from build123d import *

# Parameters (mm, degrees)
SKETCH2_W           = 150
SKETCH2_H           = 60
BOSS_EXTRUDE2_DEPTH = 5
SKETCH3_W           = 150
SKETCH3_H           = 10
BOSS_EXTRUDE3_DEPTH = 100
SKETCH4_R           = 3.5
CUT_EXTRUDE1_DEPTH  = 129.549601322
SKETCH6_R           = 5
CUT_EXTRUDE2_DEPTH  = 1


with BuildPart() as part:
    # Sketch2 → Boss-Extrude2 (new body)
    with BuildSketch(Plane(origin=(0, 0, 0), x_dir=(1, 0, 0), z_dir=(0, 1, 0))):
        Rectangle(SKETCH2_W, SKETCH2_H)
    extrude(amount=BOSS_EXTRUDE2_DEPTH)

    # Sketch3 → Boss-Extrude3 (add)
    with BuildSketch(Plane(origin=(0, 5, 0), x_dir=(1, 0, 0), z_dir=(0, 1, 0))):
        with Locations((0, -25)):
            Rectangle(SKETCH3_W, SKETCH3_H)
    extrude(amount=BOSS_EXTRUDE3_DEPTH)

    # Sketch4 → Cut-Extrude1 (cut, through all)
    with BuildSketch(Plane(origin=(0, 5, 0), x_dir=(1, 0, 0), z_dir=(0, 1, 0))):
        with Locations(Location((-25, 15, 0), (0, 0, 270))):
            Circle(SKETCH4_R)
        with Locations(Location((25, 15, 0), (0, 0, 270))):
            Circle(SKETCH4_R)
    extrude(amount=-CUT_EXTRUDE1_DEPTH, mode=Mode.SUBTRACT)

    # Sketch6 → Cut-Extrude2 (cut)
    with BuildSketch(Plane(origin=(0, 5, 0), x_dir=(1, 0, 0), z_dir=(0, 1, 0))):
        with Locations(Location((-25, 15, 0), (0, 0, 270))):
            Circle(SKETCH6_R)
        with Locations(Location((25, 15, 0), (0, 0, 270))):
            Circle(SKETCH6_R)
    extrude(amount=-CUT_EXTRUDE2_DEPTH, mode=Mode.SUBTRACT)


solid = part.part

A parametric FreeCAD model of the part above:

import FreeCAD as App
import Part
import Sketcher

V = App.Vector
Q = App.Units.Quantity

doc = App.newDocument("Part")
body = doc.addObject("PartDesign::Body", "Body")

# Sketch on XZ plane
sketch1 = doc.addObject("Sketcher::SketchObject", "Sketch")
body.addObject(sketch1)
sketch1.AttachmentSupport = (doc.XZ_Plane, [""])
sketch1.MapMode = "FlatFace"
sketch1.addGeometry([
    Part.LineSegment(V(-75, -30, 0), V(-75, 30, 0)),
    Part.LineSegment(V(-75, 30, 0), V(75, 30, 0)),
    Part.LineSegment(V(75, 30, 0), V(75, -30, 0)),
    Part.LineSegment(V(75, -30, 0), V(-75, -30, 0)),
], False)
sketch1.addConstraint([
    Sketcher.Constraint("Coincident", 0, 2, 1, 1),
    Sketcher.Constraint("Coincident", 1, 2, 2, 1),
    Sketcher.Constraint("Coincident", 2, 2, 3, 1),
    Sketcher.Constraint("Coincident", 3, 2, 0, 1),
    Sketcher.Constraint("Vertical", 0),
    Sketcher.Constraint("Horizontal", 1),
    Sketcher.Constraint("Vertical", 2),
    Sketcher.Constraint("Horizontal", 3),
    Sketcher.Constraint("Symmetric", 0, 2, 2, 2, -1, 1),
    Sketcher.Constraint("DistanceX", 1, 1, 1, 2, Q("150 mm")),
    Sketcher.Constraint("DistanceY", 0, 1, 0, 2, Q("60 mm")),
])
pad1 = doc.addObject("PartDesign::Pad", "Pad")
body.addObject(pad1)
pad1.Profile = sketch1
pad1.Length = 5
pad1.Reversed = True

# Sketch on XZ plane
sketch2 = doc.addObject("Sketcher::SketchObject", "Sketch001")
body.addObject(sketch2)
sketch2.AttachmentSupport = (doc.XZ_Plane, [""])
sketch2.MapMode = "FlatFace"
sketch2.AttachmentOffset = App.Placement(V(0, 0, -5), App.Rotation())
sketch2.addGeometry([
    Part.LineSegment(V(-75, 20, 0), V(-75, 30, 0)),
    Part.LineSegment(V(-75, 30, 0), V(75, 30, 0)),
    Part.LineSegment(V(75, 30, 0), V(75, 20, 0)),
    Part.LineSegment(V(75, 20, 0), V(-75, 20, 0)),
], False)
sketch2.addConstraint([
    Sketcher.Constraint("Coincident", 0, 2, 1, 1),
    Sketcher.Constraint("Coincident", 1, 2, 2, 1),
    Sketcher.Constraint("Coincident", 2, 2, 3, 1),
    Sketcher.Constraint("Coincident", 3, 2, 0, 1),
    Sketcher.Constraint("Vertical", 0),
    Sketcher.Constraint("Horizontal", 1),
    Sketcher.Constraint("Vertical", 2),
    Sketcher.Constraint("Horizontal", 3),
    Sketcher.Constraint("DistanceX", 1, 1, 1, 2, Q("150 mm")),
    Sketcher.Constraint("DistanceY", 0, 1, 0, 2, Q("10 mm")),
    Sketcher.Constraint("DistanceX", 0, 2, -1, 1, Q("75 mm")),
    Sketcher.Constraint("DistanceY", -1, 1, 0, 2, Q("30 mm")),
])
pad2 = doc.addObject("PartDesign::Pad", "Pad001")
body.addObject(pad2)
pad2.Profile = sketch2
pad2.Length = 100
pad2.Reversed = True

# Sketch on XZ plane
sketch3 = doc.addObject("Sketcher::SketchObject", "Sketch002")
body.addObject(sketch3)
sketch3.AttachmentSupport = (doc.XZ_Plane, [""])
sketch3.MapMode = "FlatFace"
sketch3.AttachmentOffset = App.Placement(V(0, 0, -5), App.Rotation())
sketch3.addGeometry([
    Part.Circle(V(-25, -15, 0), V(0, 0, 1), 3.5),
    Part.Circle(V(25, -15, 0), V(0, 0, 1), 3.5),
], False)
sketch3.addConstraint([
    Sketcher.Constraint("Equal", 0, 1),
    Sketcher.Constraint("Symmetric", 0, 3, 1, 3, -2),
    Sketcher.Constraint("Diameter", 0, Q("7 mm")),
    Sketcher.Constraint("DistanceX", 0, 3, -1, 1, Q("25 mm")),
    Sketcher.Constraint("DistanceY", 0, 3, -1, 1, Q("15 mm")),
])
pocket1 = doc.addObject("PartDesign::Pocket", "Pocket")
body.addObject(pocket1)
pocket1.Profile = sketch3
pocket1.Type = "ThroughAll"
pocket1.Reversed = True

# Sketch on XZ plane
sketch4 = doc.addObject("Sketcher::SketchObject", "Sketch003")
body.addObject(sketch4)
sketch4.AttachmentSupport = (doc.XZ_Plane, [""])
sketch4.MapMode = "FlatFace"
sketch4.AttachmentOffset = App.Placement(V(0, 0, -5), App.Rotation())
sketch4.addGeometry([
    Part.Circle(V(-25, -15, 0), V(0, 0, 1), 5),
    Part.Circle(V(25, -15, 0), V(0, 0, 1), 5),
], False)
sketch4.addConstraint([
    Sketcher.Constraint("Equal", 0, 1),
    Sketcher.Constraint("Symmetric", 0, 3, 1, 3, -2),
    Sketcher.Constraint("Diameter", 0, Q("10 mm")),
    Sketcher.Constraint("DistanceX", 0, 3, -1, 1, Q("25 mm")),
    Sketcher.Constraint("DistanceY", 0, 3, -1, 1, Q("15 mm")),
])
pocket2 = doc.addObject("PartDesign::Pocket", "Pocket001")
body.addObject(pocket2)
pocket2.Profile = sketch4
pocket2.Length = 1
pocket2.Reversed = True

doc.recompute()
